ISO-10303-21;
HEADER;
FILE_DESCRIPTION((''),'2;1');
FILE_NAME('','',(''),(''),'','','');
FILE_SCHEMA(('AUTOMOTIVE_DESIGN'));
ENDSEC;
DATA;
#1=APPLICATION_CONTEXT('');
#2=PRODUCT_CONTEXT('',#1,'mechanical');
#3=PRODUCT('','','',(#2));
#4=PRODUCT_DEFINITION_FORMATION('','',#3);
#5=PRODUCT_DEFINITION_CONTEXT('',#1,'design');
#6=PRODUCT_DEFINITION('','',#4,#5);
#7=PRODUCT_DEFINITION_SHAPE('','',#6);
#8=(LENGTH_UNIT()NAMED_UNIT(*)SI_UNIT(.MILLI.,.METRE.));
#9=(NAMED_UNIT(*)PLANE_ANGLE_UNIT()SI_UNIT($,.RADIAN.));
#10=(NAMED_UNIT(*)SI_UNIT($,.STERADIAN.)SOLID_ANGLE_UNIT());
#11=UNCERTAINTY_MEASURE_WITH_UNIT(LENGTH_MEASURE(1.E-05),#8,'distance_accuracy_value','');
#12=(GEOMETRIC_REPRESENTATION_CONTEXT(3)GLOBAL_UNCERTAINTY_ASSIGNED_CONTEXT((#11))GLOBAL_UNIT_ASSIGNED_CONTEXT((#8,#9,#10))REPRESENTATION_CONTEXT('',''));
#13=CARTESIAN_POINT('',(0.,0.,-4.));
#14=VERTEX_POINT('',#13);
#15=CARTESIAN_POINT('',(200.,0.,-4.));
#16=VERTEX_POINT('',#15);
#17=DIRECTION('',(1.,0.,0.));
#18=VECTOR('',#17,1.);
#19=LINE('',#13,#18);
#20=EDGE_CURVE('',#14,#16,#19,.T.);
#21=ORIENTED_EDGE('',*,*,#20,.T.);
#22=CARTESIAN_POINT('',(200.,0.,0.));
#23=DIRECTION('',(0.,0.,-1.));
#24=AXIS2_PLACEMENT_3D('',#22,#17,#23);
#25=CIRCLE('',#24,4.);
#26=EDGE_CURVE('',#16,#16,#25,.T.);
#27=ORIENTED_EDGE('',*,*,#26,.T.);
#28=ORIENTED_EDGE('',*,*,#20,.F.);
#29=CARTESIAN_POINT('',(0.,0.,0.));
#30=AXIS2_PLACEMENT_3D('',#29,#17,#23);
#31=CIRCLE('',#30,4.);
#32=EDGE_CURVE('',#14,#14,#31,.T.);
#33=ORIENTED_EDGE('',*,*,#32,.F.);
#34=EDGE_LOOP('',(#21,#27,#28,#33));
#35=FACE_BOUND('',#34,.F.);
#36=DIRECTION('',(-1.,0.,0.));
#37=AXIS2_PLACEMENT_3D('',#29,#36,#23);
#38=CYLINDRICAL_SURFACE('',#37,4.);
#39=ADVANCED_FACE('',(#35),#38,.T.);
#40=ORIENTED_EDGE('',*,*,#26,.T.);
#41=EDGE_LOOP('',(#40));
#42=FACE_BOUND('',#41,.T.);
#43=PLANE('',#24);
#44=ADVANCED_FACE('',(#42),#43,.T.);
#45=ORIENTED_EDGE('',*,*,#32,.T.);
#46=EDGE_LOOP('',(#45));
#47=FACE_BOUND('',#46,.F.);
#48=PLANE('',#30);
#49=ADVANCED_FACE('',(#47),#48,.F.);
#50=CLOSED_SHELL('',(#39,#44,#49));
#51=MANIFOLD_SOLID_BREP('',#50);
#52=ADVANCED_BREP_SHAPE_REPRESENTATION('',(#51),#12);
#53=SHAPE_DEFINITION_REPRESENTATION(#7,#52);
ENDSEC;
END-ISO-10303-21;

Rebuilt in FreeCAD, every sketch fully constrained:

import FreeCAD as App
import Part
import Sketcher

doc = App.newDocument("Part")
body = doc.addObject("PartDesign::Body", "Body")

sketch1 = body.newObject("Sketcher::SketchObject", "Sketch")
sketch1.AttachmentSupport = (doc.getObject("YZ_Plane"), [""])
sketch1.MapMode = "FlatFace"
sketch1.addGeometry(Part.Circle(App.Vector(0, 0, 0), App.Vector(0, 0, 1), 4), False)
sketch1.addConstraint(Sketcher.Constraint("Coincident", 0, 3, -1, 1))
sketch1.addConstraint(Sketcher.Constraint("Diameter", 0, 8.0))
pad1 = body.newObject("PartDesign::Pad", "Pad")
pad1.Profile = sketch1
pad1.Length = 200

doc.recompute()
